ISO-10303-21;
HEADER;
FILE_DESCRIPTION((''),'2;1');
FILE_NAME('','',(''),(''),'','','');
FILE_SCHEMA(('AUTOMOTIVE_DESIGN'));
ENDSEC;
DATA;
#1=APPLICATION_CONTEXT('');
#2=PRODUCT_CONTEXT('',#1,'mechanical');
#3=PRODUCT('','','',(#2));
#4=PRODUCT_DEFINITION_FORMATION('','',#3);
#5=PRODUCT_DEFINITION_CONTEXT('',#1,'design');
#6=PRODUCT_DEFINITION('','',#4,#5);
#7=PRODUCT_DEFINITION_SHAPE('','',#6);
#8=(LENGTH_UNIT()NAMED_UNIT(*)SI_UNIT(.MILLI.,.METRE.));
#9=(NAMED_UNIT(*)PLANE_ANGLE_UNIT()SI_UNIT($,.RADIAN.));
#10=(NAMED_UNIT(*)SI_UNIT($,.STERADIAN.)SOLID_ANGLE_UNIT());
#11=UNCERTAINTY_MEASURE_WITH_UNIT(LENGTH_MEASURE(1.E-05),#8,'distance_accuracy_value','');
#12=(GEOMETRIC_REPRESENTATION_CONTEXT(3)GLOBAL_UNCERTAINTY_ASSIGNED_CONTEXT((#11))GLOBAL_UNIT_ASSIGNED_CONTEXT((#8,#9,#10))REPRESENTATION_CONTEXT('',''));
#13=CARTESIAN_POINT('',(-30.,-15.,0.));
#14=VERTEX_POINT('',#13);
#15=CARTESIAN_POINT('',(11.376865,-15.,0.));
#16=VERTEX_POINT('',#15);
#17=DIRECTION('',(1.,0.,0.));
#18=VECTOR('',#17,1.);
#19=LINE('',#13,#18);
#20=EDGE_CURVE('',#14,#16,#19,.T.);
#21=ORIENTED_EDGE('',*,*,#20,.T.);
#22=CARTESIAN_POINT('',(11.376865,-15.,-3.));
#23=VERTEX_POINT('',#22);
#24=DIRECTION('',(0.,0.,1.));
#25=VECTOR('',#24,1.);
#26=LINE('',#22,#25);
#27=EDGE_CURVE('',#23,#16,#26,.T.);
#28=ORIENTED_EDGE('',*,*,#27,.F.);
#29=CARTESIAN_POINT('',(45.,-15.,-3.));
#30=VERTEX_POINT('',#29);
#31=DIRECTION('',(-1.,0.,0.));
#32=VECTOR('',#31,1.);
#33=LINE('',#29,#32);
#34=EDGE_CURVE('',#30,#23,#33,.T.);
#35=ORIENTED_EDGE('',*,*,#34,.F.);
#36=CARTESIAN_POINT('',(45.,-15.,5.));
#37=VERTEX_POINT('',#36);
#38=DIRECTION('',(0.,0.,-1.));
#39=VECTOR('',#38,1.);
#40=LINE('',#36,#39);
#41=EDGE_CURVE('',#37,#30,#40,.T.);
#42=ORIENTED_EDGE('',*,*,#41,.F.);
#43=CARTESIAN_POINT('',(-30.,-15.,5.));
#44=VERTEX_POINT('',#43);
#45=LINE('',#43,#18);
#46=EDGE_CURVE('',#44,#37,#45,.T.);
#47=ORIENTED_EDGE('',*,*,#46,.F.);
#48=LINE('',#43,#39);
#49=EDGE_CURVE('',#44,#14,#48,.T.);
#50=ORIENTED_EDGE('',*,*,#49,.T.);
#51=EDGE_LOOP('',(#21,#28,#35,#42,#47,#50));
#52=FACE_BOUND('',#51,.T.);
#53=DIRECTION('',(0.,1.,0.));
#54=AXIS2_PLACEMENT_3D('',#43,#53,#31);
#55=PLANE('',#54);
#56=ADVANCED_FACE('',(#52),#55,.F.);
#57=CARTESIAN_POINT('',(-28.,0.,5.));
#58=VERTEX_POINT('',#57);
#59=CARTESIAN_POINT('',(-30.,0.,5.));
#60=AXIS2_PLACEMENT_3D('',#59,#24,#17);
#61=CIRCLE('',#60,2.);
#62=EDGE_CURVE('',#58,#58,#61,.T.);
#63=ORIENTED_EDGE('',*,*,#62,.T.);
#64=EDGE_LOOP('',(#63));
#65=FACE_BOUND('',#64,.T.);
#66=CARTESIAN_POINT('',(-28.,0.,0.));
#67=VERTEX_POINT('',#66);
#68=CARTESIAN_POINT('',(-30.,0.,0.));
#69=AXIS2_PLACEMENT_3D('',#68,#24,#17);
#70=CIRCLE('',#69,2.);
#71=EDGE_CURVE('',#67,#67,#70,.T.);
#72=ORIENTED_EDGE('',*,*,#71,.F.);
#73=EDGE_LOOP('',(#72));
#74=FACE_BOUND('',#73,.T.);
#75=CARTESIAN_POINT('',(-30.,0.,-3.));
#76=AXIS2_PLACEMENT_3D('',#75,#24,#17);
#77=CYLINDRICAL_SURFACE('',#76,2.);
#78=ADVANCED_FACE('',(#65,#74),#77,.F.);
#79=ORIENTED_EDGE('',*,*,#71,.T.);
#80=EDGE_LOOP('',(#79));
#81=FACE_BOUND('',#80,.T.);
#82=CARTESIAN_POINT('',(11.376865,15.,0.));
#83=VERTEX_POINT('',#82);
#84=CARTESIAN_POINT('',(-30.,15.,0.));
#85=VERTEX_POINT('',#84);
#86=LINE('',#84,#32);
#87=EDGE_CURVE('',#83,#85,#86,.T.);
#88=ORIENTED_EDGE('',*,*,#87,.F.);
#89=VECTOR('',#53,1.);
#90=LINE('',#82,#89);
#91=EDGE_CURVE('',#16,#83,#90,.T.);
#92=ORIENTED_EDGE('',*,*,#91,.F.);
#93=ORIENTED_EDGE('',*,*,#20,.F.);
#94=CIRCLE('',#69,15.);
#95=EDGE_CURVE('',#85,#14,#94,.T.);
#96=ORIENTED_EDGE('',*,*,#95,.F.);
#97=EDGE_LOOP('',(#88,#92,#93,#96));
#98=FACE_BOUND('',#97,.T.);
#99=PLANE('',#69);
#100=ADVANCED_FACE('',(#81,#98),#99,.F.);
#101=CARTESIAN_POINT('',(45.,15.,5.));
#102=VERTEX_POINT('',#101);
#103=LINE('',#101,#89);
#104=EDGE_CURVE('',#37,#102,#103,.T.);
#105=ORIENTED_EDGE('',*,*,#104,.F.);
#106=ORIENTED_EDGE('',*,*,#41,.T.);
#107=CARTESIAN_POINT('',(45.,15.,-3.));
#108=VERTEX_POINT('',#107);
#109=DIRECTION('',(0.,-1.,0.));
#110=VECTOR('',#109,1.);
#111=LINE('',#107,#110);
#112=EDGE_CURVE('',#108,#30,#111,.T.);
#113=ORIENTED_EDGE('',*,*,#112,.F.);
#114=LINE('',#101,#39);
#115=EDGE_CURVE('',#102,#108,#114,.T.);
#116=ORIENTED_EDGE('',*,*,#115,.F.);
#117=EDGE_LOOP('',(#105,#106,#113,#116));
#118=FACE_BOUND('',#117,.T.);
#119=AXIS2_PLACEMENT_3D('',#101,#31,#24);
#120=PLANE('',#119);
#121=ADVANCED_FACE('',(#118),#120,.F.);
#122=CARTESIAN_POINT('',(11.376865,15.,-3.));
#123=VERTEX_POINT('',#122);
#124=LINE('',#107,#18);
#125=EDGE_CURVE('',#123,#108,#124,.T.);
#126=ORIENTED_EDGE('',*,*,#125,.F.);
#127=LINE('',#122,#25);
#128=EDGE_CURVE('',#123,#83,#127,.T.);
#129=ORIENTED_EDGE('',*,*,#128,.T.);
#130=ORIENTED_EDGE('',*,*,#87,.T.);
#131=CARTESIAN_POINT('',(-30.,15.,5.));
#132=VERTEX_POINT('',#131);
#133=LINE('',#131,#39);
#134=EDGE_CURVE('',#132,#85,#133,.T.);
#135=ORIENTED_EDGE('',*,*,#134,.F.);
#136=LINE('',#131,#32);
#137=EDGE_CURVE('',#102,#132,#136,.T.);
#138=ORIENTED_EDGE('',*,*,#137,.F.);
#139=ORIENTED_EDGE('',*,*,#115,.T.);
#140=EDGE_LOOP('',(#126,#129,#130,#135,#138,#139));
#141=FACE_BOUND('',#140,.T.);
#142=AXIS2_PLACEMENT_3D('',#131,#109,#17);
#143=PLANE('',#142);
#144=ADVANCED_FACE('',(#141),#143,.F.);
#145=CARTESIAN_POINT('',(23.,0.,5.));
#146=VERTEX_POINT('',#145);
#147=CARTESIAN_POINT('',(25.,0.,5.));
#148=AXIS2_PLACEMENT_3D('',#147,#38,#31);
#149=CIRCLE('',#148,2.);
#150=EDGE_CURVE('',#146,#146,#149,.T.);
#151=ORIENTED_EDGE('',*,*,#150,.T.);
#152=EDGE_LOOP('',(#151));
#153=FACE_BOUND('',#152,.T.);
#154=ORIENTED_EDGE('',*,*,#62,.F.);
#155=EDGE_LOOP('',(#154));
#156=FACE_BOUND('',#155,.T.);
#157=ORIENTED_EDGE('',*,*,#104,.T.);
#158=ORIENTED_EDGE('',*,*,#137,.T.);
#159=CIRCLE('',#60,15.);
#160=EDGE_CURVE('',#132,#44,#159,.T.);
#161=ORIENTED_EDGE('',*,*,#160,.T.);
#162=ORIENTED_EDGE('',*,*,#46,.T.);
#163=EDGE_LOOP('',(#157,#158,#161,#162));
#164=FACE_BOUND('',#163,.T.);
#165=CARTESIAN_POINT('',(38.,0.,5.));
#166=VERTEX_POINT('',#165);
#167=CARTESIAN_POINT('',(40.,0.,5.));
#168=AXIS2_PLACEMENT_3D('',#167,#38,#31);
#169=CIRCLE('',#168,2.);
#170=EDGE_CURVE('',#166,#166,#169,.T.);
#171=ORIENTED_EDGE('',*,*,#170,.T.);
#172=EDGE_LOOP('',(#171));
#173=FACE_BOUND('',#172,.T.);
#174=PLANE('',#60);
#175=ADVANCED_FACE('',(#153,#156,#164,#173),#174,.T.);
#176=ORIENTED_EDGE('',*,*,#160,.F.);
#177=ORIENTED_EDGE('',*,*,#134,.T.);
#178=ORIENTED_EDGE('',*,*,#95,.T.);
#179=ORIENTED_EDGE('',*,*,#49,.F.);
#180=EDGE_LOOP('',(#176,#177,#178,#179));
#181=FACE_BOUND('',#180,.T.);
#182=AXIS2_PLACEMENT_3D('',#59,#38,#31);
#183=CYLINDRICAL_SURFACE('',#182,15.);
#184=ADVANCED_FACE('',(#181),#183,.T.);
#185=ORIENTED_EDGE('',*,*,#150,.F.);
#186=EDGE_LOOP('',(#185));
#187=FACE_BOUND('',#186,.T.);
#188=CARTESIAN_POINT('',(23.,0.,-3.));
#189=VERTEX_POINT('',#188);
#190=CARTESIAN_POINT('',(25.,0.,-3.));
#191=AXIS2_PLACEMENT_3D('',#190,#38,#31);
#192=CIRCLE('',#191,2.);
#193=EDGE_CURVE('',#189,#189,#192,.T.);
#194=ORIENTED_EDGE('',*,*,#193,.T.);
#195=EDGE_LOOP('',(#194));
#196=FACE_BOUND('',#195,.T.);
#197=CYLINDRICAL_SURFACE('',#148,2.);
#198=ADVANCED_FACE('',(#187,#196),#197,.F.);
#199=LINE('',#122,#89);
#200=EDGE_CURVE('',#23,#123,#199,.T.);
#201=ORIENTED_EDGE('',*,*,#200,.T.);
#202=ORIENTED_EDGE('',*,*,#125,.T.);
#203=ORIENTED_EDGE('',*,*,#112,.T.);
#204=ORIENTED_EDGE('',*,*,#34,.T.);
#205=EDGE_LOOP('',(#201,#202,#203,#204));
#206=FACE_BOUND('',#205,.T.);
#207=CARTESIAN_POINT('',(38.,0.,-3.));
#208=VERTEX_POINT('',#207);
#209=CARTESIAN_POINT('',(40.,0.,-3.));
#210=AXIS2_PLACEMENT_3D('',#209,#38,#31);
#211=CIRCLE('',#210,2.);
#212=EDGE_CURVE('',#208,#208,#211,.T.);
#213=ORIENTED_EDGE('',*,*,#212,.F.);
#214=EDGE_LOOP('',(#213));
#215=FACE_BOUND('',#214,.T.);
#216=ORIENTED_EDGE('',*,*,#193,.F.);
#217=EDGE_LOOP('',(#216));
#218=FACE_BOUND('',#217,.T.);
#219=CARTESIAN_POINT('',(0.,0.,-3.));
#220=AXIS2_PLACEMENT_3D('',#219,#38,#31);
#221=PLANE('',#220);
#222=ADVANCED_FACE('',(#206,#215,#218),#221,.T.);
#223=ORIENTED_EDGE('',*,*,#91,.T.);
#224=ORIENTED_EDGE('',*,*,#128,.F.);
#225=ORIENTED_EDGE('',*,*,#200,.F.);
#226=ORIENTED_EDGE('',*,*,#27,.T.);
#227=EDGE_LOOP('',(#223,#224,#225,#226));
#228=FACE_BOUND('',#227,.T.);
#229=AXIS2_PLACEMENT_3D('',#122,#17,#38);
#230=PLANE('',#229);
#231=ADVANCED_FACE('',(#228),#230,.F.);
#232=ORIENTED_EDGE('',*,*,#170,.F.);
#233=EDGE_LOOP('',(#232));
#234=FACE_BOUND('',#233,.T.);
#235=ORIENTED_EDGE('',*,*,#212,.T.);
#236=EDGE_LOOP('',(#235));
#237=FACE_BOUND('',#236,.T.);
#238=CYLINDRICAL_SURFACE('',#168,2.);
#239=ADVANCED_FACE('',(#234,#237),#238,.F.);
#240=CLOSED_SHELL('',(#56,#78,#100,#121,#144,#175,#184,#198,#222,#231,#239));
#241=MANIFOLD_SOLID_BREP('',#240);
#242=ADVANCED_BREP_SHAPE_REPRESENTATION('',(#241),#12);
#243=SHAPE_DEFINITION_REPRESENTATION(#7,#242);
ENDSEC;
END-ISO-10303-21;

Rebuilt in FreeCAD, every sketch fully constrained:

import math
import FreeCAD as App
import Part
import Sketcher
from FreeCAD import Vector


def add_polygon(sketch, points):
    """Adds a closed chain of lines whose ends are joined by coincident constraints."""
    first, n = sketch.GeometryCount, len(points)
    for a, b in zip(points, points[1:] + points[:1]):
        sketch.addGeometry(Part.LineSegment(App.Vector(*a, 0), App.Vector(*b, 0)), False)
    for i in range(n):
        sketch.addConstraint(Sketcher.Constraint("Coincident", first + i, 2, first + (i + 1) % n, 1))

doc = App.newDocument("Part")
body = doc.addObject("PartDesign::Body", "Body")

sketch1 = body.newObject("Sketcher::SketchObject", "Sketch")
sketch1.AttachmentSupport = (doc.getObject("XY_Plane"), [""])
sketch1.MapMode = "FlatFace"
sketch1.addGeometry([
    Part.LineSegment(Vector(45, 15, 0), Vector(-30, 15, 0)),
    Part.ArcOfCircle(Part.Circle(Vector(-30, 0, 0), Vector(0, 0, 1), 15), math.radians(90), math.radians(270)),
    Part.LineSegment(Vector(-30, -15, 0), Vector(45, -15, 0)),
    Part.LineSegment(Vector(45, -15, 0), Vector(45, 15, 0)),
], False)
sketch1.addConstraint([
    Sketcher.Constraint("Tangent", 0, 2, 1, 1),
    Sketcher.Constraint("Tangent", 1, 2, 2, 1),
    Sketcher.Constraint("Coincident", 2, 2, 3, 1),
    Sketcher.Constraint("Coincident", 3, 2, 0, 1),
    Sketcher.Constraint("Horizontal", 0),
    Sketcher.Constraint("Horizontal", 2),
    Sketcher.Constraint("Vertical", 3),
    Sketcher.Constraint("PointOnObject", 1, 3, -1),
    Sketcher.Constraint("Radius", 1, 15.0),
    Sketcher.Constraint("DistanceX", 0, 2, 0, 1, 75.0),
    Sketcher.Constraint("DistanceX", 1, 3, -1, 1, 30.0),
])
pad1 = body.newObject("PartDesign::Pad", "Pad")
pad1.Profile = sketch1
pad1.Length = 5

sketch2 = body.newObject("Sketcher::SketchObject", "Sketch001")
sketch2.AttachmentSupport = (doc.getObject("XY_Plane"), [""])
sketch2.MapMode = "FlatFace"
sketch2.addGeometry([
    Part.Circle(Vector(40, 0, 0), Vector(0, 0, 1), 2),
    Part.Circle(Vector(25, 0, 0), Vector(0, 0, 1), 2),
], False)
sketch2.addConstraint([
    Sketcher.Constraint("Equal", 0, 1),
    Sketcher.Constraint("PointOnObject", 0, 3, -1),
    Sketcher.Constraint("PointOnObject", 1, 3, -1),
    Sketcher.Constraint("Diameter", 0, 4.0),
    Sketcher.Constraint("DistanceX", -1, 1, 0, 3, 40.0),
    Sketcher.Constraint("DistanceX", -1, 1, 1, 3, 25.0),
])
pocket1 = body.newObject("PartDesign::Pocket", "Pocket")
pocket1.Profile = sketch2
pocket1.Type = "ThroughAll"
pocket1.Reversed = True

sketch3 = body.newObject("Sketcher::SketchObject", "Sketch002")
sketch3.AttachmentSupport = (doc.getObject("XY_Plane"), [""])
sketch3.MapMode = "FlatFace"
add_polygon(sketch3, [(45, 15), (45, -15), (11.376865, -15), (11.376865, 15)])
sketch3.addConstraint([
    Sketcher.Constraint("Vertical", 0),
    Sketcher.Constraint("Horizontal", 1),
    Sketcher.Constraint("Vertical", 2),
    Sketcher.Constraint("Horizontal", 3),
    Sketcher.Constraint("DistanceY", 0, 2, 0, 1, 30.0),
    Sketcher.Constraint("DistanceX", -1, 1, 0, 2, 45.0),
    Sketcher.Constraint("DistanceY", 0, 2, -1, 1, 15.0),
    Sketcher.Constraint("DistanceX", 1, 2, 1, 1, 33.623135),
])
pad2 = body.newObject("PartDesign::Pad", "Pad001")
pad2.Profile = sketch3
pad2.Length = 3
pad2.Reversed = True

sketch4 = body.newObject("Sketcher::SketchObject", "Sketch003")
sketch4.AttachmentSupport = (doc.getObject("XY_Plane"), [""])
sketch4.MapMode = "FlatFace"
sketch4.AttachmentOffset = App.Placement(Vector(0, 0, -3), App.Rotation())
sketch4.addGeometry([
    Part.Circle(Vector(40, 0, 0), Vector(0, 0, 1), 2),
    Part.Circle(Vector(25, 0, 0), Vector(0, 0, 1), 2),
], False)
sketch4.addConstraint([
    Sketcher.Constraint("Equal", 0, 1),
    Sketcher.Constraint("PointOnObject", 0, 3, -1),
    Sketcher.Constraint("PointOnObject", 1, 3, -1),
    Sketcher.Constraint("Diameter", 0, 4.0),
    Sketcher.Constraint("DistanceX", -1, 1, 0, 3, 40.0),
    Sketcher.Constraint("DistanceX", -1, 1, 1, 3, 25.0),
])
pocket2 = body.newObject("PartDesign::Pocket", "Pocket001")
pocket2.Profile = sketch4
pocket2.Length = 3
pocket2.Reversed = True

sketch5 = body.newObject("Sketcher::SketchObject", "Sketch004")
sketch5.AttachmentSupport = (doc.getObject("XY_Plane"), [""])
sketch5.MapMode = "FlatFace"
sketch5.AttachmentOffset = App.Placement(Vector(0, 0, 5), App.Rotation())
sketch5.addGeometry(Part.Circle(Vector(-30, 0, 0), Vector(0, 0, 1), 2), False)
sketch5.addConstraint([
    Sketcher.Constraint("PointOnObject", 0, 3, -1),
    Sketcher.Constraint("Diameter", 0, 4.0),
    Sketcher.Constraint("DistanceX", 0, 3, -1, 1, 30.0),
])
pocket3 = body.newObject("PartDesign::Pocket", "Pocket002")
pocket3.Profile = sketch5
pocket3.Type = "ThroughAll"

doc.recompute()
